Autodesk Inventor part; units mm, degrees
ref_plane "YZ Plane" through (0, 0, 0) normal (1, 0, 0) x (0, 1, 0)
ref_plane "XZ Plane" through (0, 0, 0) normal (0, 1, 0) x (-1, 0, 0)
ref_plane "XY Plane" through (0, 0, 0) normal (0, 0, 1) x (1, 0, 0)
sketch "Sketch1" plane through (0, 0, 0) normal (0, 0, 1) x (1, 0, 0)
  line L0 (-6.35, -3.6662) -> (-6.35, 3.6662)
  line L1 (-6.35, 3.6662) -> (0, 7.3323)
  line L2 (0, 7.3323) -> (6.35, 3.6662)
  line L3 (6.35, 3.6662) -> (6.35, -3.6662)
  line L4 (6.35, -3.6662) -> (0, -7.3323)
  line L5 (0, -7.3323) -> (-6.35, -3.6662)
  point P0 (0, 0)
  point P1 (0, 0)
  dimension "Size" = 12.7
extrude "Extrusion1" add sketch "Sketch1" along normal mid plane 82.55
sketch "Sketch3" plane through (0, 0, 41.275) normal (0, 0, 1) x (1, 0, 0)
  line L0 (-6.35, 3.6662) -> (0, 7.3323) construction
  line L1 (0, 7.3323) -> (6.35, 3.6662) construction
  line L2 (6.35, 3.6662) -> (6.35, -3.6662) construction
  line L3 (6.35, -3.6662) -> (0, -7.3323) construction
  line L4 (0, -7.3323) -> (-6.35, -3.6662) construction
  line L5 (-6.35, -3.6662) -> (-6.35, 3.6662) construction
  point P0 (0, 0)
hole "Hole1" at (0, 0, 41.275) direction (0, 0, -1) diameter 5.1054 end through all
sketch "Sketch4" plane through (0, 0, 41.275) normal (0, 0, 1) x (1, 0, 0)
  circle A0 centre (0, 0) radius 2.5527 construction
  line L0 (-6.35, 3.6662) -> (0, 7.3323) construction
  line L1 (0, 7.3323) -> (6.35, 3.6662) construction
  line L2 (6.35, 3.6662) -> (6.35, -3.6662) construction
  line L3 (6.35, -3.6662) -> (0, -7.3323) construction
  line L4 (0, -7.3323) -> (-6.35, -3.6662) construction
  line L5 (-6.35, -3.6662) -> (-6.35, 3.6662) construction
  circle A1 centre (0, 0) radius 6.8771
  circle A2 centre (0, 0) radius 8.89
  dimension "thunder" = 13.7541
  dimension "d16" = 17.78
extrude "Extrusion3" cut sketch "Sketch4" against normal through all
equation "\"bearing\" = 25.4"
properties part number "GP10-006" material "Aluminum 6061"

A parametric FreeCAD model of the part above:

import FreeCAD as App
import Part
import Sketcher
Q = App.Units.Quantity


def add_polygon(sketch, points):
    """Adds a closed chain of lines whose ends are joined by coincident constraints."""
    first, n = sketch.GeometryCount, len(points)
    for a, b in zip(points, points[1:] + points[:1]):
        sketch.addGeometry(Part.LineSegment(App.Vector(*a, 0), App.Vector(*b, 0)), False)
    for i in range(n):
        sketch.addConstraint(Sketcher.Constraint("Coincident", first + i, 2, first + (i + 1) % n, 1))

doc = App.newDocument("Part")
body = doc.addObject("PartDesign::Body", "Body")

sketch1 = body.newObject("Sketcher::SketchObject", "Sketch")
sketch1.AttachmentSupport = (doc.getObject("XY_Plane"), [""])
sketch1.MapMode = "FlatFace"
add_polygon(sketch1, [(-6, 4), (-6, -4), (0, -7), (6, -4), (6, 4), (0, 7)])
sketch1.addConstraint([
    Sketcher.Constraint("Vertical", 0),
    Sketcher.Constraint("Vertical", 3),
    Sketcher.Constraint("Symmetric", 0, 2, 3, 2, -1, 1),
    Sketcher.Constraint("Symmetric", 1, 2, 4, 2, -1, 1),
    Sketcher.Constraint("PointOnObject", 1, 2, -2),
    Sketcher.Constraint("Parallel", 2, 5),
    Sketcher.Constraint("Horizontal", 0, 2, 2, 2),
    Sketcher.Constraint("DistanceX", 0, 2, 2, 2, Q("0.5 in")),
    Sketcher.Constraint("Angle", 1, Q("-29.9995 deg")),
    Sketcher.Constraint("DistanceY", 1, 2, 3, 2, Q("0.433 in")),
])
pad1 = body.newObject("PartDesign::Pad", "Pad")
pad1.Profile = sketch1
pad1.Length = Q("3.25 in")
pad1.Midplane = True

sketch2 = body.newObject("Sketcher::SketchObject", "Sketch001")
sketch2.AttachmentSupport = (doc.getObject("XY_Plane"), [""])
sketch2.MapMode = "FlatFace"
sketch2.AttachmentOffset = App.Placement(App.Vector(0, 0, 1.625 * 25.4), App.Rotation())
sketch2.addGeometry(Part.Circle(App.Vector(0, 0, 0), App.Vector(0, 0, 1), 2.6), False)
sketch2.addConstraint([
    Sketcher.Constraint("Coincident", 0, 3, -1, 1),
    Sketcher.Constraint("Diameter", 0, Q("0.201 in")),
])
doc.recompute()
hole = body.newObject("PartDesign::Hole", "Hole")
hole.Profile = sketch2
hole.ThreadType = "None"
hole.Diameter = Q("0.201 in")
hole.DepthType = "ThroughAll"

sketch3 = body.newObject("Sketcher::SketchObject", "Sketch002")
sketch3.AttachmentSupport = (doc.getObject("XY_Plane"), [""])
sketch3.MapMode = "FlatFace"
sketch3.AttachmentOffset = App.Placement(App.Vector(0, 0, 1.625 * 25.4), App.Rotation())
sketch3.addGeometry([
    Part.Circle(App.Vector(0, 0, 0), App.Vector(0, 0, 1), 9),
    Part.Circle(App.Vector(0, 0, 0), App.Vector(0, 0, 1), 7),
], False)
sketch3.addConstraint([
    Sketcher.Constraint("Coincident", 0, 3, -1, 1),
    Sketcher.Constraint("Coincident", 1, 3, -1, 1),
    Sketcher.Constraint("Diameter", 0, Q("0.7 in")),
    Sketcher.Constraint("Diameter", 1, Q("0.5415 in")),
])
pocket1 = body.newObject("PartDesign::Pocket", "Pocket")
pocket1.Profile = sketch3
pocket1.Type = "ThroughAll"

doc.recompute()
